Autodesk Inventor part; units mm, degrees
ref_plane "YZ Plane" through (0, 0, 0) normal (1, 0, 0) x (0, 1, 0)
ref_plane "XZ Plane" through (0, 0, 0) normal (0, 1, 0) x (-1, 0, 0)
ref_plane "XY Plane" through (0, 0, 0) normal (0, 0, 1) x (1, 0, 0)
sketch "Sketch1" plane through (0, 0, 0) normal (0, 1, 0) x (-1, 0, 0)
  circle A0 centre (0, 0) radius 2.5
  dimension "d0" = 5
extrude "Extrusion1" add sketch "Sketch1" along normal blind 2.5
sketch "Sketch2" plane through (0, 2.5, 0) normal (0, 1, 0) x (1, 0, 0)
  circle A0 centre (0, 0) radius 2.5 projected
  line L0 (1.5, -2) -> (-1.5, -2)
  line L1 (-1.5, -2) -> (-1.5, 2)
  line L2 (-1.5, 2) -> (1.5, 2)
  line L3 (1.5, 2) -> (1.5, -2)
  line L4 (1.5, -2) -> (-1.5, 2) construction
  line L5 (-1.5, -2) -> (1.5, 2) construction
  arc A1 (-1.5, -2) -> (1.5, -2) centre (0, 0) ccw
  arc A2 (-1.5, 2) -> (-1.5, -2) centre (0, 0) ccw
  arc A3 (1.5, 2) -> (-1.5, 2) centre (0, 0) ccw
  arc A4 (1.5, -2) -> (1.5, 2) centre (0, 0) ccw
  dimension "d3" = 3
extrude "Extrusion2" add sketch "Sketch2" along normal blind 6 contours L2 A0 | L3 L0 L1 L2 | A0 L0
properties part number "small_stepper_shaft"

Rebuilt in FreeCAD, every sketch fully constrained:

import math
import FreeCAD as App
import Part
import Sketcher

doc = App.newDocument("Part")
body = doc.addObject("PartDesign::Body", "Body")

sketch1 = body.newObject("Sketcher::SketchObject", "Sketch")
sketch1.AttachmentSupport = (doc.getObject("XZ_Plane"), [""])
sketch1.MapMode = "FlatFace"
sketch1.addGeometry(Part.Circle(App.Vector(0, 0, 0), App.Vector(0, 0, 1), 2.5), False)
sketch1.addConstraint(Sketcher.Constraint("Coincident", 0, 3, -1, 1))
sketch1.addConstraint(Sketcher.Constraint("Diameter", 0, 5.0))
pad1 = body.newObject("PartDesign::Pad", "Pad")
pad1.Profile = sketch1
pad1.Length = 2.5
pad1.Reversed = True

sketch2 = body.newObject("Sketcher::SketchObject", "Sketch001")
sketch2.AttachmentSupport = (doc.getObject("XZ_Plane"), [""])
sketch2.MapMode = "FlatFace"
sketch2.AttachmentOffset = App.Placement(App.Vector(0, 0, -2.5), App.Rotation())
sketch2.addGeometry(Part.ArcOfCircle(Part.Circle(App.Vector(0, 0, 0), App.Vector(0, 0, 1), 2.5), math.radians(-127), math.radians(-53)), False)
sketch2.addGeometry(Part.LineSegment(App.Vector(-1.5, -2, 0), App.Vector(-1.5, 2, 0)), False)
sketch2.addGeometry(Part.ArcOfCircle(Part.Circle(App.Vector(0, 0, 0), App.Vector(0, 0, 1), 2.5), math.radians(53), math.radians(127)), False)
sketch2.addGeometry(Part.LineSegment(App.Vector(1.5, 2, 0), App.Vector(1.5, -2, 0)), False)
sketch2.addConstraint(Sketcher.Constraint("Coincident", 0, 1, 1, 1))
sketch2.addConstraint(Sketcher.Constraint("Coincident", 1, 2, 2, 2))
sketch2.addConstraint(Sketcher.Constraint("Coincident", 2, 1, 3, 1))
sketch2.addConstraint(Sketcher.Constraint("Coincident", 3, 2, 0, 2))
sketch2.addConstraint(Sketcher.Constraint("Vertical", 1))
sketch2.addConstraint(Sketcher.Constraint("Vertical", 3))
sketch2.addConstraint(Sketcher.Constraint("Coincident", 0, 3, -1, 1))
sketch2.addConstraint(Sketcher.Constraint("Coincident", 2, 3, -1, 1))
sketch2.addConstraint(Sketcher.Constraint("Equal", 0, 2))
sketch2.addConstraint(Sketcher.Constraint("Horizontal", 1, 2, 2, 1))
sketch2.addConstraint(Sketcher.Constraint("DistanceX", 1, 2, 2, 1, 3.0))
sketch2.addConstraint(Sketcher.Constraint("Radius", 0, 2.5))
pad2 = body.newObject("PartDesign::Pad", "Pad001")
pad2.Profile = sketch2
pad2.Length = 6
pad2.Reversed = True

doc.recompute()
